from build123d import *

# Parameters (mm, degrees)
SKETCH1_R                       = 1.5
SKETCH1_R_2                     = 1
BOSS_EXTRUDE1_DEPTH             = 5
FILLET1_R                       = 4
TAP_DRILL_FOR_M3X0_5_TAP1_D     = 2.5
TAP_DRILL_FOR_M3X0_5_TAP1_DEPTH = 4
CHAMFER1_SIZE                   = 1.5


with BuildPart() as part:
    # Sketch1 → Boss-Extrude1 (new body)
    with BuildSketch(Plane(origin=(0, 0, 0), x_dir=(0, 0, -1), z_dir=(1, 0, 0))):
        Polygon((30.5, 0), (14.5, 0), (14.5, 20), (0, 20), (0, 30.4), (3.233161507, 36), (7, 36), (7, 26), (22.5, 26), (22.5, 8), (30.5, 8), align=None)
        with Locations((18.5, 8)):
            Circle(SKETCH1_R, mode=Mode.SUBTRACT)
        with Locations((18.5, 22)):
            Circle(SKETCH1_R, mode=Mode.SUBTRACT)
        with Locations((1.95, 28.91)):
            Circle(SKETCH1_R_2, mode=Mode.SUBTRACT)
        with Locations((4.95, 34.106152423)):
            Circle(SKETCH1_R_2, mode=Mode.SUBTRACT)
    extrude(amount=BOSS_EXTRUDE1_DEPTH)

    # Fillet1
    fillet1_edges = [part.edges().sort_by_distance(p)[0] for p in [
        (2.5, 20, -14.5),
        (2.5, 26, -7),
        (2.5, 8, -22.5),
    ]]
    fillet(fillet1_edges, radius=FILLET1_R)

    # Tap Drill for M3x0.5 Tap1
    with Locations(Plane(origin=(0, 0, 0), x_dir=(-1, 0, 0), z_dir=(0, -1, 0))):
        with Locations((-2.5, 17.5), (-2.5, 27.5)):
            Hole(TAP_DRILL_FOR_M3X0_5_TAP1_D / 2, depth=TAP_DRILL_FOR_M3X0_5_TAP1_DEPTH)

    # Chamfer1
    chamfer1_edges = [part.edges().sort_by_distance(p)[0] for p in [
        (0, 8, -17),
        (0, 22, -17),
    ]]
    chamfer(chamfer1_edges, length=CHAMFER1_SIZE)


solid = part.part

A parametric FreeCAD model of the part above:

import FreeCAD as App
import Part
import Sketcher

V = App.Vector
Q = App.Units.Quantity


def edges_at(feature, points):
    """Names of the edges that pass closest to the given points."""
    edges = feature.Shape.Edges
    near = lambda p: min(range(len(edges)), key=lambda i: edges[i].distToShape(Part.Vertex(*p))[0])
    return sorted({f"Edge{near(p) + 1}" for p in points})

doc = App.newDocument("Part")
params = doc.addObject("Spreadsheet::Sheet", "Params")
for row, (alias, value) in enumerate([
    ("sketch1_diameter", "3 mm"),
    ("sketch1_diameter2", "2 mm"),
    ("sketch1_width", "8 mm"),
    ("sketch1_width2", "18 mm"),
    ("sketch1_width3", "10 mm"),
    ("pad1_length", "5 mm"),
    ("fillet_radius", "4 mm"),
    ("sketch2_diameter", "2.5 mm"),
    ("hole_diameter", "2.5 mm"),
    ("hole_depth", "4 mm"),
    ("chamfer_size", "1.5 mm"),
], start=1):
    params.set(f"A{row}", alias)
    params.set(f"B{row}", "=" + value)
    params.setAlias(f"B{row}", alias)

body = doc.addObject("PartDesign::Body", "Body")

# Sketch on YZ plane
sketch1 = doc.addObject("Sketcher::SketchObject", "Sketch")
body.addObject(sketch1)
sketch1.AttachmentSupport = (doc.YZ_Plane, [""])
sketch1.MapMode = "FlatFace"
sketch1.addGeometry([
    Part.LineSegment(V(0, -14.5, 0), V(0, -30.5, 0)),  # 0
    Part.LineSegment(V(0, -30.5, 0), V(8, -30.5, 0)),  # 1
    Part.LineSegment(V(8, -30.5, 0), V(8, -22.5, 0)),  # 2
    Part.LineSegment(V(8, -22.5, 0), V(26, -22.5, 0)),  # 3
    Part.LineSegment(V(26, -22.5, 0), V(26, -7, 0)),  # 4
    Part.LineSegment(V(26, -7, 0), V(36, -7, 0)),  # 5
    Part.LineSegment(V(36, -7, 0), V(36, -3.2, 0)),  # 6
    Part.LineSegment(V(36, -3.2, 0), V(30.4, 0, 0)),  # 7
    Part.LineSegment(V(30.4, 0, 0), V(20, 0, 0)),  # 8
    Part.LineSegment(V(20, 0, 0), V(20, -14.5, 0)),  # 9
    Part.LineSegment(V(20, -14.5, 0), V(0, -14.5, 0)),  # 10
    Part.Circle(V(8, -18.5, 0), V(0, 0, 1), 1.5),  # 11
    Part.Circle(V(22, -18.5, 0), V(0, 0, 1), 1.5),  # 12
    Part.Circle(V(28.9, -1.9, 0), V(0, 0, 1), 1),  # 13
    Part.Circle(V(34.1, -5, 0), V(0, 0, 1), 1),  # 14
], False)
sketch1.addConstraint([
    Sketcher.Constraint("Coincident", 0, 2, 1, 1),
    Sketcher.Constraint("Coincident", 1, 2, 2, 1),
    Sketcher.Constraint("Coincident", 2, 2, 3, 1),
    Sketcher.Constraint("Coincident", 3, 2, 4, 1),
    Sketcher.Constraint("Coincident", 4, 2, 5, 1),
    Sketcher.Constraint("Coincident", 5, 2, 6, 1),
    Sketcher.Constraint("Coincident", 6, 2, 7, 1),
    Sketcher.Constraint("Coincident", 7, 2, 8, 1),
    Sketcher.Constraint("Coincident", 8, 2, 9, 1),
    Sketcher.Constraint("Coincident", 9, 2, 10, 1),
    Sketcher.Constraint("Coincident", 10, 2, 0, 1),
    Sketcher.Constraint("Vertical", 0),
    Sketcher.Constraint("Horizontal", 1),
    Sketcher.Constraint("Vertical", 2),
    Sketcher.Constraint("Horizontal", 3),
    Sketcher.Constraint("Vertical", 4),
    Sketcher.Constraint("Horizontal", 5),
    Sketcher.Constraint("Vertical", 6),
    Sketcher.Constraint("Horizontal", 8),
    Sketcher.Constraint("Vertical", 9),
    Sketcher.Constraint("Horizontal", 10),
    Sketcher.Constraint("Equal", 11, 12),
    Sketcher.Constraint("Equal", 13, 14),
    Sketcher.Constraint("PointOnObject", 0, 2, -2),
    Sketcher.Constraint("PointOnObject", 7, 2, -1),
    Sketcher.Constraint("Horizontal", 11, 3, 12, 3),
    Sketcher.Constraint("Vertical", 11, 3, 1, 2),
    Sketcher.Constraint("Equal", 1, 2),
    Sketcher.Constraint("Diameter", 11, 3.0),
    Sketcher.Constraint("Diameter", 13, 2.0),
    Sketcher.Constraint("DistanceX", 1, 1, 1, 2, 8.0),
    Sketcher.Constraint("DistanceX", 3, 1, 3, 2, 18.0),
    Sketcher.Constraint("DistanceX", 5, 1, 5, 2, 10.0),
    Sketcher.Constraint("DistanceX", 10, 2, 10, 1, 20.0),
    Sketcher.Constraint("DistanceY", 0, 2, 0, 1, 16.0),
    Sketcher.Constraint("Angle", 7, Q("150 deg")),
    Sketcher.Constraint("DistanceX", 8, 2, 8, 1, 10.4),
    Sketcher.Constraint("DistanceY", 4, 1, 4, 2, 15.5),
    Sketcher.Constraint("DistanceY", 9, 2, 9, 1, 14.5),
    Sketcher.Constraint("DistanceX", -1, 1, 12, 3, 22.0),
    Sketcher.Constraint("DistanceY", 14, 3, 13, 3, 3.0),
    Sketcher.Constraint("DistanceY", 0, 2, 11, 3, 12.0),
    Sketcher.Constraint("DistanceX", -1, 1, 13, 3, 28.91),
    Sketcher.Constraint("DistanceY", 13, 3, -1, 1, 1.95),
    Sketcher.Constraint("DistanceX", -1, 1, 14, 3, 34.106152),
])
sketch1.setExpression("Constraints[28]", "Params.sketch1_diameter")
sketch1.setExpression("Constraints[29]", "Params.sketch1_diameter2")
sketch1.setExpression("Constraints[30]", "Params.sketch1_width")
sketch1.setExpression("Constraints[31]", "Params.sketch1_width2")
sketch1.setExpression("Constraints[32]", "Params.sketch1_width3")
pad1 = doc.addObject("PartDesign::Pad", "Pad")
body.addObject(pad1)
pad1.Profile = sketch1
pad1.setExpression("Length", "Params.pad1_length")
doc.recompute()

fillet = doc.addObject("PartDesign::Fillet", "Fillet")
body.addObject(fillet)
fillet.Base = (pad1, edges_at(pad1, [(2.5, 20, -14.5), (2.5, 26, -7), (2.5, 8, -22.5)]))
fillet.setExpression("Radius", "Params.fillet_radius")

# Sketch on XZ plane
sketch2 = doc.addObject("Sketcher::SketchObject", "Sketch001")
body.addObject(sketch2)
sketch2.AttachmentSupport = (doc.XZ_Plane, [""])
sketch2.MapMode = "FlatFace"
sketch2.addGeometry([
    Part.Circle(V(2.5, -17.5, 0), V(0, 0, 1), 1.2),
    Part.Circle(V(2.5, -27.5, 0), V(0, 0, 1), 1.2),
], False)
sketch2.addConstraint([
    Sketcher.Constraint("Equal", 0, 1),
    Sketcher.Constraint("Vertical", 0, 3, 1, 3),
    Sketcher.Constraint("Diameter", 0, 2.5),
    Sketcher.Constraint("DistanceY", 1, 3, 0, 3, 10.0),
    Sketcher.Constraint("DistanceX", -1, 1, 0, 3, 2.5),
    Sketcher.Constraint("DistanceY", 0, 3, -1, 1, 17.5),
])
sketch2.setExpression("Constraints[2]", "Params.sketch2_diameter")
doc.recompute()
hole = doc.addObject("PartDesign::Hole", "Hole")
body.addObject(hole)
hole.Profile = sketch2
hole.ThreadType = "None"
hole.setExpression("Diameter", "Params.hole_diameter")
hole.DepthType = "Dimension"
hole.setExpression("Depth", "Params.hole_depth")
hole.DrillPoint = "Flat"
doc.recompute()

chamfer = doc.addObject("PartDesign::Chamfer", "Chamfer")
body.addObject(chamfer)
chamfer.Base = (hole, edges_at(hole, [(0, 8, -17), (0, 22, -17)]))
chamfer.setExpression("Size", "Params.chamfer_size")

doc.recompute()
